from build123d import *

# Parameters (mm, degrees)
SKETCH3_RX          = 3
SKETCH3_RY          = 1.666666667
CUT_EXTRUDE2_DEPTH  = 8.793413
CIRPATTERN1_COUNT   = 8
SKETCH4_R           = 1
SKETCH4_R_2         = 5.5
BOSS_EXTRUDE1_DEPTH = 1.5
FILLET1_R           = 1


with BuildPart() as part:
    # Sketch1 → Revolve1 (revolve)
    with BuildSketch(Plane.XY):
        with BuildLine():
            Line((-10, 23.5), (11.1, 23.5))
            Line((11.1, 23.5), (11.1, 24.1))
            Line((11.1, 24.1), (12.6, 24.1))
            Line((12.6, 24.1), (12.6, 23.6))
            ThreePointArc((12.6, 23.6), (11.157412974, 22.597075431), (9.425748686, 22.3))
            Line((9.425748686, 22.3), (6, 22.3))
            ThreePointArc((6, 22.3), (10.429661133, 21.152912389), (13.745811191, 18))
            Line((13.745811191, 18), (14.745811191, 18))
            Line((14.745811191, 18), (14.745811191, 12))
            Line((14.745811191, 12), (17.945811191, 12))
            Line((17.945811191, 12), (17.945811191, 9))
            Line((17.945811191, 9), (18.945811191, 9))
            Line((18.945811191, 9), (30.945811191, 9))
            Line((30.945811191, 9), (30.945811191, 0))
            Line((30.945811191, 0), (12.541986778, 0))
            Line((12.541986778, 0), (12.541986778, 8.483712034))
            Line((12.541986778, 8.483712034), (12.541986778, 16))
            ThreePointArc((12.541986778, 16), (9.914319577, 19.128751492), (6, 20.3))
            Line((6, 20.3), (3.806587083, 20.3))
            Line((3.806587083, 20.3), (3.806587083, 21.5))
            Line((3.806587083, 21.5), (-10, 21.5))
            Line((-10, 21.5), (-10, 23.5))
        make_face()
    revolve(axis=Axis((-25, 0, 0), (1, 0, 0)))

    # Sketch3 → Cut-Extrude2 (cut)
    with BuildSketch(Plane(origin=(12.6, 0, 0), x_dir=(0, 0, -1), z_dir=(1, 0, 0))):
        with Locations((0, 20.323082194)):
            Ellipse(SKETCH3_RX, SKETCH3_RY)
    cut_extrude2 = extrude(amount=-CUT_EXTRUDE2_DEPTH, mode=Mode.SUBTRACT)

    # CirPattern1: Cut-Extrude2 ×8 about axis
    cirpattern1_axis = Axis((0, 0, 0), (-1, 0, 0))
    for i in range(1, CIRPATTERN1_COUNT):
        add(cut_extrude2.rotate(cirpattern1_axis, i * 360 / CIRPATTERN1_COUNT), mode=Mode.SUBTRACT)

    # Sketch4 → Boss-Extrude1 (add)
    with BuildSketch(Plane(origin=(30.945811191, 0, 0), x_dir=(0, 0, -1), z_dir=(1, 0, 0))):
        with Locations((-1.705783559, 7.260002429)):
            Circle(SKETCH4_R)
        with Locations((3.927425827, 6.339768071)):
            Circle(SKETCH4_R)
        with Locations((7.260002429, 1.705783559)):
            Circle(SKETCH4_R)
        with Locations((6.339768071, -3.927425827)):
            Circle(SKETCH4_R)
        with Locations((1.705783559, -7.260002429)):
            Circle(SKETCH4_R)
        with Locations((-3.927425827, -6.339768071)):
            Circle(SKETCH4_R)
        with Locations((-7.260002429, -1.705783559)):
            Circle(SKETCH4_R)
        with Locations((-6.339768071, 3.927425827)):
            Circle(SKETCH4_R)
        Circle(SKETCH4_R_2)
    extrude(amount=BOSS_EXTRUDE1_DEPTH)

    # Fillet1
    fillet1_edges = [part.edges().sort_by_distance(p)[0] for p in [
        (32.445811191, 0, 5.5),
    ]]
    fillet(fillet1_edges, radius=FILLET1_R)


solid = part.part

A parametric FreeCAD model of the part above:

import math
import FreeCAD as App
import Part
import Sketcher
from FreeCAD import Vector
Q = App.Units.Quantity


def edges_at(feature, points):
    """Names of the edges that pass closest to the given points."""
    edges = feature.Shape.Edges
    near = lambda p: min(range(len(edges)), key=lambda i: edges[i].distToShape(Part.Vertex(*p))[0])
    return sorted({f"Edge{near(p) + 1}" for p in points})

doc = App.newDocument("Part")
body = doc.addObject("PartDesign::Body", "Body")

sketch1 = body.newObject("Sketcher::SketchObject", "Sketch")
sketch1.AttachmentSupport = (doc.getObject("XY_Plane"), [""])
sketch1.MapMode = "FlatFace"
sketch1.addGeometry(Part.LineSegment(Vector(11.1, 23.5, 0), Vector(-10, 23.5, 0)), False)
sketch1.addGeometry(Part.LineSegment(Vector(-10, 23.5, 0), Vector(-10, 21.5, 0)), False)
sketch1.addGeometry(Part.LineSegment(Vector(-10, 21.5, 0), Vector(3.8, 21.5, 0)), False)
sketch1.addGeometry(Part.LineSegment(Vector(3.8, 21.5, 0), Vector(3.8, 20.3, 0)), False)
sketch1.addGeometry(Part.LineSegment(Vector(3.8, 20.3, 0), Vector(6, 20.3, 0)), False)
sketch1.addGeometry(Part.ArcOfCircle(Part.Circle(Vector(6, 13.2, 0), Vector(0, 0, 1), 7.1), math.radians(23), math.radians(90)), False)
sketch1.addGeometry(Part.LineSegment(Vector(12.5, 16, 0), Vector(12.5, 0, 0)), False)
sketch1.addGeometry(Part.LineSegment(Vector(12.5, 0, 0), Vector(30.9, 0, 0)), False)
sketch1.addGeometry(Part.LineSegment(Vector(30.9, 0, 0), Vector(30.9, 9, 0)), False)
sketch1.addGeometry(Part.LineSegment(Vector(30.9, 9, 0), Vector(17.9, 9, 0)), False)
sketch1.addGeometry(Part.LineSegment(Vector(17.9, 9, 0), Vector(17.9, 12, 0)), False)
sketch1.addGeometry(Part.LineSegment(Vector(17.9, 12, 0), Vector(14.7, 12, 0)), False)
sketch1.addGeometry(Part.LineSegment(Vector(14.7, 12, 0), Vector(14.7, 18, 0)), False)
sketch1.addGeometry(Part.LineSegment(Vector(14.7, 18, 0), Vector(13.7, 18, 0)), False)
sketch1.addGeometry(Part.ArcOfCircle(Part.Circle(Vector(6, 13.2, 0), Vector(0, 0, 1), 9.1), math.radians(32), math.radians(90)), False)
sketch1.addGeometry(Part.LineSegment(Vector(6, 22.3, 0), Vector(9.4, 22.3, 0)), False)
sketch1.addGeometry(Part.ArcOfCircle(Part.Circle(Vector(9.6, 26.3, 0), Vector(0, 0, 1), 4), math.radians(-93), math.radians(-43)), False)
sketch1.addGeometry(Part.LineSegment(Vector(12.6, 23.6, 0), Vector(12.6, 24.1, 0)), False)
sketch1.addGeometry(Part.LineSegment(Vector(12.6, 24.1, 0), Vector(11.1, 24.1, 0)), False)
sketch1.addGeometry(Part.LineSegment(Vector(11.1, 24.1, 0), Vector(11.1, 23.5, 0)), False)
sketch1.addConstraint(Sketcher.Constraint("Coincident", 0, 2, 1, 1))
sketch1.addConstraint(Sketcher.Constraint("Coincident", 1, 2, 2, 1))
sketch1.addConstraint(Sketcher.Constraint("Coincident", 2, 2, 3, 1))
sketch1.addConstraint(Sketcher.Constraint("Coincident", 3, 2, 4, 1))
sketch1.addConstraint(Sketcher.Constraint("Tangent", 4, 2, 5, 2))
sketch1.addConstraint(Sketcher.Constraint("Coincident", 5, 1, 6, 1))
sketch1.addConstraint(Sketcher.Constraint("Coincident", 6, 2, 7, 1))
sketch1.addConstraint(Sketcher.Constraint("Coincident", 7, 2, 8, 1))
sketch1.addConstraint(Sketcher.Constraint("Coincident", 8, 2, 9, 1))
sketch1.addConstraint(Sketcher.Constraint("Coincident", 9, 2, 10, 1))
sketch1.addConstraint(Sketcher.Constraint("Coincident", 10, 2, 11, 1))
sketch1.addConstraint(Sketcher.Constraint("Coincident", 11, 2, 12, 1))
sketch1.addConstraint(Sketcher.Constraint("Coincident", 12, 2, 13, 1))
sketch1.addConstraint(Sketcher.Constraint("Coincident", 13, 2, 14, 1))
sketch1.addConstraint(Sketcher.Constraint("Tangent", 14, 2, 15, 1))
sketch1.addConstraint(Sketcher.Constraint("Coincident", 15, 2, 16, 1))
sketch1.addConstraint(Sketcher.Constraint("Coincident", 16, 2, 17, 1))
sketch1.addConstraint(Sketcher.Constraint("Coincident", 17, 2, 18, 1))
sketch1.addConstraint(Sketcher.Constraint("Coincident", 18, 2, 19, 1))
sketch1.addConstraint(Sketcher.Constraint("Coincident", 19, 2, 0, 1))
sketch1.addConstraint(Sketcher.Constraint("Horizontal", 0))
sketch1.addConstraint(Sketcher.Constraint("Vertical", 1))
sketch1.addConstraint(Sketcher.Constraint("Horizontal", 2))
sketch1.addConstraint(Sketcher.Constraint("Vertical", 3))
sketch1.addConstraint(Sketcher.Constraint("Horizontal", 4))
sketch1.addConstraint(Sketcher.Constraint("Vertical", 6))
sketch1.addConstraint(Sketcher.Constraint("Horizontal", 7))
sketch1.addConstraint(Sketcher.Constraint("Vertical", 8))
sketch1.addConstraint(Sketcher.Constraint("Horizontal", 9))
sketch1.addConstraint(Sketcher.Constraint("Vertical", 10))
sketch1.addConstraint(Sketcher.Constraint("Horizontal", 11))
sketch1.addConstraint(Sketcher.Constraint("Vertical", 12))
sketch1.addConstraint(Sketcher.Constraint("Horizontal", 13))
sketch1.addConstraint(Sketcher.Constraint("Horizontal", 15))
sketch1.addConstraint(Sketcher.Constraint("Vertical", 17))
sketch1.addConstraint(Sketcher.Constraint("Horizontal", 18))
sketch1.addConstraint(Sketcher.Constraint("Vertical", 19))
sketch1.addConstraint(Sketcher.Constraint("Coincident", 14, 3, 5, 3))
sketch1.addConstraint(Sketcher.Constraint("PointOnObject", 6, 2, -1))
sketch1.addConstraint(Sketcher.Constraint("DistanceX", 9, 2, 9, 1, Q("13 mm")))
sketch1.addConstraint(Sketcher.Constraint("DistanceX", 13, 2, 13, 1, Q("1 mm")))
sketch1.addConstraint(Sketcher.Constraint("DistanceY", 1, 2, 1, 1, Q("2 mm")))
sketch1.addConstraint(Sketcher.Constraint("DistanceY", 6, 2, 6, 1, Q("16 mm")))
sketch1.addConstraint(Sketcher.Constraint("DistanceY", 8, 1, 8, 2, Q("9 mm")))
sketch1.addConstraint(Sketcher.Constraint("DistanceY", 10, 1, 10, 2, Q("3 mm")))
sketch1.addConstraint(Sketcher.Constraint("DistanceY", 12, 1, 12, 2, Q("6 mm")))
sketch1.addConstraint(Sketcher.Constraint("DistanceX", 0, 2, 0, 1, Q("21.1 mm")))
sketch1.addConstraint(Sketcher.Constraint("DistanceX", 11, 2, 11, 1, Q("3.2 mm")))
sketch1.addConstraint(Sketcher.Constraint("DistanceX", 18, 2, 18, 1, Q("1.5 mm")))
sketch1.addConstraint(Sketcher.Constraint("DistanceY", 3, 2, 3, 1, Q("1.2 mm")))
sketch1.addConstraint(Sketcher.Constraint("DistanceY", 17, 1, 17, 2, Q("0.5 mm")))
sketch1.addConstraint(Sketcher.Constraint("DistanceY", 19, 2, 19, 1, Q("0.6 mm")))
sketch1.addConstraint(Sketcher.Constraint("DistanceX", -1, 1, 5, 3, Q("6 mm")))
sketch1.addConstraint(Sketcher.Constraint("DistanceX", 0, 2, -1, 1, Q("10 mm")))
sketch1.addConstraint(Sketcher.Constraint("DistanceY", 4, 2, 14, 2, Q("2 mm")))
sketch1.addConstraint(Sketcher.Constraint("DistanceY", -1, 1, 0, 2, Q("23.5 mm")))
sketch1.addConstraint(Sketcher.Constraint("Radius", 5, Q("7.126464 mm")))
sketch1.addConstraint(Sketcher.Constraint("Radius", 16, Q("4.047082 mm")))
sketch1.addConstraint(Sketcher.Constraint("DistanceX", 15, 1, 15, 2, Q("3.425749 mm")))
sketch1.addConstraint(Sketcher.Constraint("DistanceX", 3, 2, 5, 1, Q("8.7354 mm")))
revolution = body.newObject("PartDesign::Revolution", "Revolution")
revolution.Profile = sketch1
revolution.ReferenceAxis = (sketch1, ["H_Axis"])
revolution.Angle = 360

sketch2 = body.newObject("Sketcher::SketchObject", "Sketch001")
sketch2.AttachmentSupport = (doc.getObject("YZ_Plane"), [""])
sketch2.MapMode = "FlatFace"
sketch2.AttachmentOffset = App.Placement(Vector(0, 0, 12.6), App.Rotation())
sketch2.addGeometry(Part.Ellipse(Vector(20.323082, -3, 0), Vector(21.989749, 0, 0), Vector(20.323082, 0, 0)), False)
sketch2.addConstraint(Sketcher.Constraint("Block", 0))
pocket1 = body.newObject("PartDesign::Pocket", "Pocket")
pocket1.Profile = sketch2
pocket1.Length = 8.793413
doc.recompute()

polarpattern = body.newObject("PartDesign::PolarPattern", "PolarPattern")
polarpattern.Originals = [pocket1]
polarpattern.Axis = (doc.getObject("X_Axis"), [""])
polarpattern.Angle = 360
polarpattern.Occurrences = 8
body.Tip = polarpattern

sketch3 = body.newObject("Sketcher::SketchObject", "Sketch002")
sketch3.AttachmentSupport = (doc.getObject("YZ_Plane"), [""])
sketch3.MapMode = "FlatFace"
sketch3.AttachmentOffset = App.Placement(Vector(0, 0, 30.945811), App.Rotation())
sketch3.addGeometry(Part.Circle(Vector(7.3, 1.7, 0), Vector(0, 0, 1), 1), False)
sketch3.addGeometry(Part.Circle(Vector(6.3, -3.9, 0), Vector(0, 0, 1), 1), False)
sketch3.addGeometry(Part.Circle(Vector(1.7, -7.3, 0), Vector(0, 0, 1), 1), False)
sketch3.addGeometry(Part.Circle(Vector(-3.9, -6.3, 0), Vector(0, 0, 1), 1), False)
sketch3.addGeometry(Part.Circle(Vector(-7.3, -1.7, 0), Vector(0, 0, 1), 1), False)
sketch3.addGeometry(Part.Circle(Vector(-6.3, 3.9, 0), Vector(0, 0, 1), 1), False)
sketch3.addGeometry(Part.Circle(Vector(-1.7, 7.3, 0), Vector(0, 0, 1), 1), False)
sketch3.addGeometry(Part.Circle(Vector(3.9, 6.3, 0), Vector(0, 0, 1), 1), False)
sketch3.addGeometry(Part.Circle(Vector(0, 0, 0), Vector(0, 0, 1), 5.5), False)
sketch3.addConstraint(Sketcher.Constraint("Coincident", 8, 3, -1, 1))
sketch3.addConstraint(Sketcher.Constraint("Equal", 0, 1))
sketch3.addConstraint(Sketcher.Constraint("Equal", 1, 2))
sketch3.addConstraint(Sketcher.Constraint("Equal", 2, 3))
sketch3.addConstraint(Sketcher.Constraint("Equal", 3, 4))
sketch3.addConstraint(Sketcher.Constraint("Equal", 4, 5))
sketch3.addConstraint(Sketcher.Constraint("Equal", 5, 6))
sketch3.addConstraint(Sketcher.Constraint("Equal", 6, 7))
sketch3.addConstraint(Sketcher.Constraint("Symmetric", 0, 3, 4, 3, -1, 1))
sketch3.addConstraint(Sketcher.Constraint("Symmetric", 1, 3, 5, 3, -1, 1))
sketch3.addConstraint(Sketcher.Constraint("Symmetric", 2, 3, 6, 3, -1, 1))
sketch3.addConstraint(Sketcher.Constraint("Symmetric", 3, 3, 7, 3, -1, 1))
sketch3.addConstraint(Sketcher.Constraint("Diameter", 0, Q("2 mm")))
sketch3.addConstraint(Sketcher.Constraint("Diameter", 8, Q("11 mm")))
sketch3.addConstraint(Sketcher.Constraint("DistanceX", -1, 1, 1, 3, Q("6.339768 mm")))
sketch3.addConstraint(Sketcher.Constraint("DistanceY", 3, 3, -1, 1, Q("6.339768 mm")))
sketch3.addConstraint(Sketcher.Constraint("DistanceY", 1, 3, 0, 3, Q("5.633209 mm")))
sketch3.addConstraint(Sketcher.Constraint("DistanceX", 2, 3, 0, 3, Q("5.554219 mm")))
sketch3.addConstraint(Sketcher.Constraint("DistanceX", 3, 3, 2, 3, Q("5.633209 mm")))
sketch3.addConstraint(Sketcher.Constraint("DistanceY", 3, 3, 0, 3, Q("8.045552 mm")))
sketch3.addConstraint(Sketcher.Constraint("DistanceY", 2, 3, 4, 3, Q("5.554219 mm")))
sketch3.addConstraint(Sketcher.Constraint("DistanceX", 4, 3, 1, 3, Q("13.59977 mm")))
pad1 = body.newObject("PartDesign::Pad", "Pad")
pad1.Profile = sketch3
pad1.Length = 1.5
doc.recompute()

fillet = body.newObject("PartDesign::Fillet", "Fillet")
fillet.Base = (pad1, edges_at(pad1, [(32.446, 0, 5.5)]))
fillet.Radius = 1

doc.recompute()
